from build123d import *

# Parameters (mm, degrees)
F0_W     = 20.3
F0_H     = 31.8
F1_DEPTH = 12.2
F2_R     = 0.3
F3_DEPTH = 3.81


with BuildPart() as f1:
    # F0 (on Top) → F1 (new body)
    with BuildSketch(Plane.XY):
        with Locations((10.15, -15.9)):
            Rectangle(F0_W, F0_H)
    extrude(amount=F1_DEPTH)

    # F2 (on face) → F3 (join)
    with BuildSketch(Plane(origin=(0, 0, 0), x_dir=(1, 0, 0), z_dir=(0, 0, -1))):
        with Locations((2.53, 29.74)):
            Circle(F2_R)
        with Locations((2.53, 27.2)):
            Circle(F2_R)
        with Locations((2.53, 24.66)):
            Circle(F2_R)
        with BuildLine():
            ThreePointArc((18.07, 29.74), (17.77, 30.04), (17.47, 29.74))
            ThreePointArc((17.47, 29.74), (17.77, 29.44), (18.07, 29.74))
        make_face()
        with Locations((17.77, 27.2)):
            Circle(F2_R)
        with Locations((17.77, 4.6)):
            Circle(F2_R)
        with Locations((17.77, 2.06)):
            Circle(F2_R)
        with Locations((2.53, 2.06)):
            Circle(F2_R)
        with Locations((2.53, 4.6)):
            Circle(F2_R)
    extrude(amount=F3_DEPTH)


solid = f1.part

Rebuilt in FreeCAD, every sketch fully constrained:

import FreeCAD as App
import Part
import Sketcher
from FreeCAD import Vector
Q = App.Units.Quantity


def add_polygon(sketch, points):
    """Adds a closed chain of lines whose ends are joined by coincident constraints."""
    first, n = sketch.GeometryCount, len(points)
    for a, b in zip(points, points[1:] + points[:1]):
        sketch.addGeometry(Part.LineSegment(App.Vector(*a, 0), App.Vector(*b, 0)), False)
    for i in range(n):
        sketch.addConstraint(Sketcher.Constraint("Coincident", first + i, 2, first + (i + 1) % n, 1))

doc = App.newDocument("Part")
params = doc.addObject("Spreadsheet::Sheet", "Params")
for row, (alias, value) in enumerate([
    ("sketch1_width", "20.3 mm"),
    ("sketch1_height", "31.8 mm"),
    ("pad1_length", "12.2 mm"),
    ("sketch2_diameter", "0.6 mm"),
    ("pad2_length", "3.81 mm"),
], start=1):
    params.set(f"A{row}", alias)
    params.set(f"B{row}", "=" + value)
    params.setAlias(f"B{row}", alias)

body = doc.addObject("PartDesign::Body", "Body")

# Sketch on XY plane
sketch1 = body.newObject("Sketcher::SketchObject", "Sketch")
sketch1.AttachmentSupport = (doc.getObject("XY_Plane"), [""])
sketch1.MapMode = "FlatFace"
add_polygon(sketch1, [(0, 0), (0, -32), (20, -32), (20, 0)])  # lines 0-3
sketch1.addConstraint([
    Sketcher.Constraint("Vertical", 0),
    Sketcher.Constraint("Horizontal", 1),
    Sketcher.Constraint("Vertical", 2),
    Sketcher.Constraint("Horizontal", 3),
    Sketcher.Constraint("Coincident", 3, 2, -1, 1),
    Sketcher.Constraint("DistanceX", 1, 1, 1, 2, Q("20.3 mm")),
    Sketcher.Constraint("DistanceY", 0, 2, 0, 1, Q("31.8 mm")),
])
sketch1.setExpression("Constraints[9]", "Params.sketch1_width")
sketch1.setExpression("Constraints[10]", "Params.sketch1_height")
pad1 = body.newObject("PartDesign::Pad", "Pad")
pad1.Profile = sketch1
pad1.setExpression("Length", "Params.pad1_length")

# Sketch on XY plane
sketch2 = body.newObject("Sketcher::SketchObject", "Sketch001")
sketch2.AttachmentSupport = (doc.getObject("XY_Plane"), [""])
sketch2.MapMode = "FlatFace"
sketch2.addGeometry([
    Part.Circle(Vector(2.53, -29.74, 0), Vector(0, 0, 1), 0.3),  # 0
    Part.Circle(Vector(2.53, -27.2, 0), Vector(0, 0, 1), 0.3),  # 1
    Part.Circle(Vector(2.53, -24.66, 0), Vector(0, 0, 1), 0.3),  # 2
    Part.Circle(Vector(17.77, -29.74, 0), Vector(0, 0, 1), 0.3),  # 3
    Part.Circle(Vector(17.77, -27.2, 0), Vector(0, 0, 1), 0.3),  # 4
    Part.Circle(Vector(17.77, -4.6, 0), Vector(0, 0, 1), 0.3),  # 5
    Part.Circle(Vector(17.77, -2.06, 0), Vector(0, 0, 1), 0.3),  # 6
    Part.Circle(Vector(2.53, -2.06, 0), Vector(0, 0, 1), 0.3),  # 7
    Part.Circle(Vector(2.53, -4.6, 0), Vector(0, 0, 1), 0.3),  # 8
], False)
sketch2.addConstraint([
    Sketcher.Constraint("Equal", 0, 1),
    Sketcher.Constraint("Equal", 1, 2),
    Sketcher.Constraint("Equal", 2, 3),
    Sketcher.Constraint("Equal", 3, 4),
    Sketcher.Constraint("Equal", 4, 5),
    Sketcher.Constraint("Equal", 5, 6),
    Sketcher.Constraint("Equal", 6, 7),
    Sketcher.Constraint("Equal", 7, 8),
    Sketcher.Constraint("Horizontal", 0, 3, 3, 3),
    Sketcher.Constraint("Horizontal", 1, 3, 4, 3),
    Sketcher.Constraint("Horizontal", 6, 3, 7, 3),
    Sketcher.Constraint("Horizontal", 5, 3, 8, 3),
    Sketcher.Constraint("Vertical", 0, 3, 1, 3),
    Sketcher.Constraint("Vertical", 1, 3, 2, 3),
    Sketcher.Constraint("Vertical", 3, 3, 4, 3),
    Sketcher.Constraint("Vertical", 4, 3, 5, 3),
    Sketcher.Constraint("Vertical", 5, 3, 6, 3),
    Sketcher.Constraint("Vertical", 2, 3, 7, 3),
    Sketcher.Constraint("Vertical", 7, 3, 8, 3),
    Sketcher.Constraint("Diameter", 0, Q("0.6 mm")),
    Sketcher.Constraint("DistanceY", 1, 3, -1, 1, Q("27.2 mm")),
    Sketcher.Constraint("DistanceY", 5, 3, -1, 1, Q("4.6 mm")),
    Sketcher.Constraint("DistanceY", 2, 3, 6, 3, Q("22.6 mm")),
    Sketcher.Constraint("DistanceX", -1, 1, 0, 3, Q("2.53 mm")),
    Sketcher.Constraint("DistanceY", 0, 3, -1, 1, Q("29.74 mm")),
    Sketcher.Constraint("DistanceY", 2, 3, -1, 1, Q("24.66 mm")),
    Sketcher.Constraint("DistanceX", -1, 1, 3, 3, Q("17.77 mm")),
])
sketch2.setExpression("Constraints[19]", "Params.sketch2_diameter")
pad2 = body.newObject("PartDesign::Pad", "Pad001")
pad2.Profile = sketch2
pad2.setExpression("Length", "Params.pad2_length")
pad2.Reversed = True

doc.recompute()
